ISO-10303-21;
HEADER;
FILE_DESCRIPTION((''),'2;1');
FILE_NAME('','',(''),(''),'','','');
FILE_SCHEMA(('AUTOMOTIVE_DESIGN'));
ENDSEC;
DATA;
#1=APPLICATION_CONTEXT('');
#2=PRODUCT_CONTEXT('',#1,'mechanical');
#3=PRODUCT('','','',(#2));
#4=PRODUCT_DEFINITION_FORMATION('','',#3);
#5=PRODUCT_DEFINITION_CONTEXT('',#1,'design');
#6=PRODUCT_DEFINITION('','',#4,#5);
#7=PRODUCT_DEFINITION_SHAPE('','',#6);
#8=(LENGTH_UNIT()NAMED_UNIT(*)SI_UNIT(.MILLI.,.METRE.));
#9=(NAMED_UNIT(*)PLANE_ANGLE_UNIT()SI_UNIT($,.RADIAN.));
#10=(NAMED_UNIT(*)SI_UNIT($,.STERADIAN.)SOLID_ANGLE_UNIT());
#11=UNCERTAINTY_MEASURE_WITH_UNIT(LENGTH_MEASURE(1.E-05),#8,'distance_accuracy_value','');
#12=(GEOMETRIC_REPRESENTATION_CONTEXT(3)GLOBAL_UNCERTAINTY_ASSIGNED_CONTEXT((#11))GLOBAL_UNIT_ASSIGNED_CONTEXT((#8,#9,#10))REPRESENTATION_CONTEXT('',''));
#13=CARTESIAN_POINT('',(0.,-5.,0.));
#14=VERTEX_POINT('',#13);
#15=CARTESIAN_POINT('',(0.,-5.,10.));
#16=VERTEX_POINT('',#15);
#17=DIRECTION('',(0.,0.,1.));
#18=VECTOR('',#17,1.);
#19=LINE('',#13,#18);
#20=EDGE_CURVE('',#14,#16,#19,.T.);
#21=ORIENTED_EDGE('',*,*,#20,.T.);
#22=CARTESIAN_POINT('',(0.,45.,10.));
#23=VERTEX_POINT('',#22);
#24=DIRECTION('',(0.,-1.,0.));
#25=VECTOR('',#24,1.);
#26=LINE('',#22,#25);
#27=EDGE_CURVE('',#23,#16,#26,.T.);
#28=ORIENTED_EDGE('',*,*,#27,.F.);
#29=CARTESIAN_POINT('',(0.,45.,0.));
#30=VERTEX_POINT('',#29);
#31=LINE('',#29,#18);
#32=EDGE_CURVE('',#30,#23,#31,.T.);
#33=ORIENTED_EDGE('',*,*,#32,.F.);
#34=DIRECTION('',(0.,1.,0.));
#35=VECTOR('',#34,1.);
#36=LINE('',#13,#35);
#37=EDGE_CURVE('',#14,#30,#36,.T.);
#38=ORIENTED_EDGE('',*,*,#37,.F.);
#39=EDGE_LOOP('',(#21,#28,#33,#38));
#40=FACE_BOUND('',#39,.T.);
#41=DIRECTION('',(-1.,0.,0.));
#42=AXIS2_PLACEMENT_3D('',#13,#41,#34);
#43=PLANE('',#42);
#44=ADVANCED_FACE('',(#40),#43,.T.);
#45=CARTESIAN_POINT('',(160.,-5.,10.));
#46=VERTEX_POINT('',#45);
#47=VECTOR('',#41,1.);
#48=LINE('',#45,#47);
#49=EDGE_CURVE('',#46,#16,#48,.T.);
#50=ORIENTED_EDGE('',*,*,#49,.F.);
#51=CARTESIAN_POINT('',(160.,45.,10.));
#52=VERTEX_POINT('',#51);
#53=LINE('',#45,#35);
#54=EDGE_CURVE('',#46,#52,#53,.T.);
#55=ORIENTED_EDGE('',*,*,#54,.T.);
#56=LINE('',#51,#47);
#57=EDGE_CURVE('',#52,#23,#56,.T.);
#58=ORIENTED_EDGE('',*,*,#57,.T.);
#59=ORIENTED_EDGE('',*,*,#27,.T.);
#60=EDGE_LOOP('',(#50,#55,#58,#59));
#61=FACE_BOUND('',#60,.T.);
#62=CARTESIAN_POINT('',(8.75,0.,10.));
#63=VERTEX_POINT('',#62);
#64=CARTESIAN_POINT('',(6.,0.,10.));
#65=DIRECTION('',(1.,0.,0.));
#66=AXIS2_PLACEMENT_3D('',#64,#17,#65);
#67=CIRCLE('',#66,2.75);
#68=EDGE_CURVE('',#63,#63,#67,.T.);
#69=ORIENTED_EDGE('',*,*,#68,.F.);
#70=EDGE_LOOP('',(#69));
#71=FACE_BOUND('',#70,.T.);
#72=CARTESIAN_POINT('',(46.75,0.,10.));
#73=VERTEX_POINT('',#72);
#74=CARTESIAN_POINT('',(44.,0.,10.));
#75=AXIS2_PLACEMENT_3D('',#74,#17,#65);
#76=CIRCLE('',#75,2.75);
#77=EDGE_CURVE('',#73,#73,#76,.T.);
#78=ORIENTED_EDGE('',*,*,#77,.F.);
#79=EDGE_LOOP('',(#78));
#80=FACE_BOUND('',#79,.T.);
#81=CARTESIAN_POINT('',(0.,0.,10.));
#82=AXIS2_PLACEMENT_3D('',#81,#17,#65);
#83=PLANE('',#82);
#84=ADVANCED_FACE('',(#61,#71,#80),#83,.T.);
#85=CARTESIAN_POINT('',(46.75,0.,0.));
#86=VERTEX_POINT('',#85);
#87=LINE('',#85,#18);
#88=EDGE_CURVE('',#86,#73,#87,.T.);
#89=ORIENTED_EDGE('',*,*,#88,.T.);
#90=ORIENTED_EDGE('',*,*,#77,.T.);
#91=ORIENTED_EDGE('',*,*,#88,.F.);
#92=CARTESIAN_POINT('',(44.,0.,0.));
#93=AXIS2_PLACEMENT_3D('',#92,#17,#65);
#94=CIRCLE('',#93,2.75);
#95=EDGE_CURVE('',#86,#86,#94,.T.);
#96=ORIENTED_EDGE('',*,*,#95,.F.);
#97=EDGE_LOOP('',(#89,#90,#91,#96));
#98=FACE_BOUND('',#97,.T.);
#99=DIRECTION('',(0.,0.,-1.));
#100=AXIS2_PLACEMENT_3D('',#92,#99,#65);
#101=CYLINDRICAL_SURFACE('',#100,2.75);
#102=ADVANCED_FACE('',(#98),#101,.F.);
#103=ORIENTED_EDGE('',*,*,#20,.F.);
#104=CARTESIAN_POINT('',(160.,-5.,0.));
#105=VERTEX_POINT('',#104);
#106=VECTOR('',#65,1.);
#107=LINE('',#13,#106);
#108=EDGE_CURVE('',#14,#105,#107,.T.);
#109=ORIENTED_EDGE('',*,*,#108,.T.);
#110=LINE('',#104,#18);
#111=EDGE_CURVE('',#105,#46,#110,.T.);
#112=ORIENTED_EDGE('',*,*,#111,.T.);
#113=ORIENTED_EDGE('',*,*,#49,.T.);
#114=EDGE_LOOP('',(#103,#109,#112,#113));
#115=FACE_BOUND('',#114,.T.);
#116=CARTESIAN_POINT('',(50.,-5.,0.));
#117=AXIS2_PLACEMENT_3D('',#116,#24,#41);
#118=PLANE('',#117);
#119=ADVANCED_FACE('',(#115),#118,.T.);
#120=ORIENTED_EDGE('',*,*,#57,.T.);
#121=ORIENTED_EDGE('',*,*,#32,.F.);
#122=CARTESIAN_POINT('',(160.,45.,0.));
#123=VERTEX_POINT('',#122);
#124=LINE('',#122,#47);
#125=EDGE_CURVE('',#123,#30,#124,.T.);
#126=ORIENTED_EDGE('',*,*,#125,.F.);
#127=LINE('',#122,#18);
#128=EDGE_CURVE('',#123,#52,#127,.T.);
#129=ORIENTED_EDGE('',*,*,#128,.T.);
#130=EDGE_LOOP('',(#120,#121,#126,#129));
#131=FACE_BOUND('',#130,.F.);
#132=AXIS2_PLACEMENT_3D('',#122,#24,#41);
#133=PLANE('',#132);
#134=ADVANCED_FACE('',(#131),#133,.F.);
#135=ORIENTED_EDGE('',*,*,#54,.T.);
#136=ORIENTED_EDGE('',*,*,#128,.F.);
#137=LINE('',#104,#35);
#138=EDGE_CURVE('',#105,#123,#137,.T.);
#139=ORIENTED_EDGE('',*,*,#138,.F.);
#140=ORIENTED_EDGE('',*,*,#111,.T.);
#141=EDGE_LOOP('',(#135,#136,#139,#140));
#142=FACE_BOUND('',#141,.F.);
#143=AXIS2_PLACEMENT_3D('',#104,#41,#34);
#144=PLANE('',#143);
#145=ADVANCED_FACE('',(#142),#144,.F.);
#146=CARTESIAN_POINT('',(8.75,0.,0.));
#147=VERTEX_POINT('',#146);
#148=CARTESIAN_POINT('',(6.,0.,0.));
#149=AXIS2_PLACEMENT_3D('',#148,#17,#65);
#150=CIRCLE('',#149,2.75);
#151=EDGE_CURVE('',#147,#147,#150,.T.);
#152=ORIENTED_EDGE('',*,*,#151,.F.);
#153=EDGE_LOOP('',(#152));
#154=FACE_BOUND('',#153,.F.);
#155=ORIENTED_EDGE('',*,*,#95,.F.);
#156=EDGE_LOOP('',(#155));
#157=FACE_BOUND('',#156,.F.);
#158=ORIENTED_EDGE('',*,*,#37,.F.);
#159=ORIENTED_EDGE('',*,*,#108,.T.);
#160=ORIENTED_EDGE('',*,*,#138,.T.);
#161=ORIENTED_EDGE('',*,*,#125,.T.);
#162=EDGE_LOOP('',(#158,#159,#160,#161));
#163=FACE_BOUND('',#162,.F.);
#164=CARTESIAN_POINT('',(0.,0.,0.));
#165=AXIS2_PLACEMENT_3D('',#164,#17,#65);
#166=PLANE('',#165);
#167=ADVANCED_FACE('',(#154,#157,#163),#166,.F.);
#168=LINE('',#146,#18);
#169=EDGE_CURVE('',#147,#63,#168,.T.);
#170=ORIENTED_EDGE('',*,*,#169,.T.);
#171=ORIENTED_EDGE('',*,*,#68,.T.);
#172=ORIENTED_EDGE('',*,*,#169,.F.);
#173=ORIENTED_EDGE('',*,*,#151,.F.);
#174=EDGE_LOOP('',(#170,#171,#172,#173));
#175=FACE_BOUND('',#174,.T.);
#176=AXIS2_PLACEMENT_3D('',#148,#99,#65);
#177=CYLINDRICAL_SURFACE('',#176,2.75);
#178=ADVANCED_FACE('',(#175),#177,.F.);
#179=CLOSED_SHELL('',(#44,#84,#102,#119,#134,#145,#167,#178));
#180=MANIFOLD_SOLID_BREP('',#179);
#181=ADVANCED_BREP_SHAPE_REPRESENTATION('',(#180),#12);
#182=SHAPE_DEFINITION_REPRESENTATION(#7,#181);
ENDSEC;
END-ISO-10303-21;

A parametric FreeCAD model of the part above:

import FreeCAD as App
import Part
import Sketcher

V = App.Vector

doc = App.newDocument("Part")
params = doc.addObject("Spreadsheet::Sheet", "Params")
for row, (alias, value) in enumerate([
    ("sketch1_width", "160 mm"),
    ("sketch1_height", "50 mm"),
    ("sketch1_diameter", "5.5 mm"),
    ("pad1_length", "10 mm"),
], start=1):
    params.set(f"A{row}", alias)
    params.set(f"B{row}", "=" + value)
    params.setAlias(f"B{row}", alias)

body = doc.addObject("PartDesign::Body", "Body")

# Sketch on XY plane
sketch1 = body.newObject("Sketcher::SketchObject", "Sketch")
sketch1.AttachmentSupport = (doc.getObject("XY_Plane"), [""])
sketch1.MapMode = "FlatFace"
sketch1.addGeometry(Part.LineSegment(V(160, -5, 0), V(160, 45, 0)), False)
sketch1.addGeometry(Part.LineSegment(V(160, 45, 0), V(0, 45, 0)), False)
sketch1.addGeometry(Part.LineSegment(V(0, 45, 0), V(0, -5, 0)), False)
sketch1.addGeometry(Part.LineSegment(V(0, -5, 0), V(160, -5, 0)), False)
sketch1.addGeometry(Part.Circle(V(44, 0, 0), V(0, 0, 1), 2.8), False)
sketch1.addGeometry(Part.Circle(V(6, 0, 0), V(0, 0, 1), 2.8), False)
sketch1.addConstraint(Sketcher.Constraint("Coincident", 0, 2, 1, 1))
sketch1.addConstraint(Sketcher.Constraint("Coincident", 1, 2, 2, 1))
sketch1.addConstraint(Sketcher.Constraint("Coincident", 2, 2, 3, 1))
sketch1.addConstraint(Sketcher.Constraint("Coincident", 3, 2, 0, 1))
sketch1.addConstraint(Sketcher.Constraint("Vertical", 0))
sketch1.addConstraint(Sketcher.Constraint("Horizontal", 1))
sketch1.addConstraint(Sketcher.Constraint("Vertical", 2))
sketch1.addConstraint(Sketcher.Constraint("Horizontal", 3))
sketch1.addConstraint(Sketcher.Constraint("Equal", 4, 5))
sketch1.addConstraint(Sketcher.Constraint("PointOnObject", 4, 3, -1))
sketch1.addConstraint(Sketcher.Constraint("PointOnObject", 5, 3, -1))
sketch1.addConstraint(Sketcher.Constraint("PointOnObject", 1, 2, -2))
sketch1.addConstraint(Sketcher.Constraint("DistanceX", 1, 2, 1, 1, 160.0))
sketch1.addConstraint(Sketcher.Constraint("DistanceY", 0, 1, 0, 2, 50.0))
sketch1.addConstraint(Sketcher.Constraint("Diameter", 4, 5.5))
sketch1.addConstraint(Sketcher.Constraint("DistanceX", -1, 1, 4, 3, 44.0))
sketch1.addConstraint(Sketcher.Constraint("DistanceX", -1, 1, 5, 3, 6.0))
sketch1.addConstraint(Sketcher.Constraint("DistanceY", -1, 1, 0, 2, 45.0))
sketch1.setExpression("Constraints[12]", "Params.sketch1_width")
sketch1.setExpression("Constraints[13]", "Params.sketch1_height")
sketch1.setExpression("Constraints[14]", "Params.sketch1_diameter")
pad1 = body.newObject("PartDesign::Pad", "Pad")
pad1.Profile = sketch1
pad1.setExpression("Length", "Params.pad1_length")

doc.recompute()
